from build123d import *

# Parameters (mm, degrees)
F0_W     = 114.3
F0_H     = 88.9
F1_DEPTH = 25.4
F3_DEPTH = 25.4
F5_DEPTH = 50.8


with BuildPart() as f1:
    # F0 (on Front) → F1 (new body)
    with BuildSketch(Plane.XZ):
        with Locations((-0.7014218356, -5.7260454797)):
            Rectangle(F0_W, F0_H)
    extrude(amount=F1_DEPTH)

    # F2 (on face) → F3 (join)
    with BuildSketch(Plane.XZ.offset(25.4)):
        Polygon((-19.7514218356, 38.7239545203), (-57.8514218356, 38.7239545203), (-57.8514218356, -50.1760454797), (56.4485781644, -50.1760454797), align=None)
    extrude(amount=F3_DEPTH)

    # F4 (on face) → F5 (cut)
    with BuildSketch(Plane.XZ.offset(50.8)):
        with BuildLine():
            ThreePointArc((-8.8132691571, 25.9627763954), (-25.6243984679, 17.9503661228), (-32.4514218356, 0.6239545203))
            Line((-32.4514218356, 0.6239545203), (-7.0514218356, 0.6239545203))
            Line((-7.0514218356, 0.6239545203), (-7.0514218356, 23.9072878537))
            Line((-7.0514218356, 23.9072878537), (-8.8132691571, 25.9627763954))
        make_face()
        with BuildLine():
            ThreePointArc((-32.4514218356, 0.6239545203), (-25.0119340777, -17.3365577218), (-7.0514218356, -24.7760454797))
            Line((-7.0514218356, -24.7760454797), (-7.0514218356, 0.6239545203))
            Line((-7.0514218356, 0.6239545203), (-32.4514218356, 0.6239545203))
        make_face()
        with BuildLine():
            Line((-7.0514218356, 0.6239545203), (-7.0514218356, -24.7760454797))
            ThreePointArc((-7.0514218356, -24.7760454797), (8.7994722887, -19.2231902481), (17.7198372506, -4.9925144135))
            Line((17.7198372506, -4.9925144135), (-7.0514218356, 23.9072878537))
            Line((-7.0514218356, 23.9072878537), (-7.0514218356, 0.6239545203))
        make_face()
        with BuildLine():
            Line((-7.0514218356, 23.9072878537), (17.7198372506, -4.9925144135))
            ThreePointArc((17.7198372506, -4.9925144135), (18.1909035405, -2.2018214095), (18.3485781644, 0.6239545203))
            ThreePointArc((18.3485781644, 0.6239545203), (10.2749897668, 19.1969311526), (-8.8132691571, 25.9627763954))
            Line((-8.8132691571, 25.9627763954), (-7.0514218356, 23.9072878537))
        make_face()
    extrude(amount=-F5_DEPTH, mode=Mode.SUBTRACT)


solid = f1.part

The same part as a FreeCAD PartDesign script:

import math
import FreeCAD as App
import Part
import Sketcher

V = App.Vector
Q = App.Units.Quantity

doc = App.newDocument("Part")
params = doc.addObject("Spreadsheet::Sheet", "Params")
for row, (alias, value) in enumerate([
    ("sketch1_width", "4.5 in"),
    ("sketch1_height", "3.5 in"),
    ("pad1_length", "1 in"),
    ("sketch2_width", "1.5 in"),
    ("sketch2_width2", "4.5 in"),
    ("sketch2_height", "3.5 in"),
    ("pad2_length", "1 in"),
    ("sketch3_radius", "1 in"),
    ("pocket1_length", "2 in"),
], start=1):
    params.set(f"A{row}", alias)
    params.set(f"B{row}", "=" + value)
    params.setAlias(f"B{row}", alias)

body = doc.addObject("PartDesign::Body", "Body")

sketch1 = body.newObject("Sketcher::SketchObject", "Sketch")
sketch1.AttachmentSupport = (doc.getObject("XZ_Plane"), [""])
sketch1.MapMode = "FlatFace"
sketch1.addGeometry([
    Part.LineSegment(V(-58, 39, 0), V(-58, -50, 0)),
    Part.LineSegment(V(-58, -50, 0), V(56, -50, 0)),
    Part.LineSegment(V(56, -50, 0), V(56, 39, 0)),
    Part.LineSegment(V(56, 39, 0), V(-58, 39, 0)),
], False)
sketch1.addConstraint([
    Sketcher.Constraint("Coincident", 0, 2, 1, 1),
    Sketcher.Constraint("Coincident", 1, 2, 2, 1),
    Sketcher.Constraint("Coincident", 2, 2, 3, 1),
    Sketcher.Constraint("Coincident", 3, 2, 0, 1),
    Sketcher.Constraint("Vertical", 0),
    Sketcher.Constraint("Horizontal", 1),
    Sketcher.Constraint("Vertical", 2),
    Sketcher.Constraint("Horizontal", 3),
    Sketcher.Constraint("DistanceX", 1, 1, 1, 2, Q("4.5 in")),
    Sketcher.Constraint("DistanceY", 0, 2, 0, 1, Q("3.5 in")),
    Sketcher.Constraint("DistanceX", 0, 2, -1, 1, Q("57.851422 mm")),
    Sketcher.Constraint("DistanceY", 0, 2, -1, 1, Q("50.176045 mm")),
])
sketch1.setExpression("Constraints[8]", "Params.sketch1_width")
sketch1.setExpression("Constraints[9]", "Params.sketch1_height")
pad1 = body.newObject("PartDesign::Pad", "Pad")
pad1.Profile = sketch1
pad1.setExpression("Length", "Params.pad1_length")

sketch2 = body.newObject("Sketcher::SketchObject", "Sketch001")
sketch2.AttachmentSupport = (doc.getObject("XZ_Plane"), [""])
sketch2.MapMode = "FlatFace"
sketch2.AttachmentOffset = App.Placement(V(0, 0, 1 * 25.4), App.Rotation())
sketch2.addGeometry([
    Part.LineSegment(V(-20, 39, 0), V(-58, 39, 0)),
    Part.LineSegment(V(-58, 39, 0), V(-58, -50, 0)),
    Part.LineSegment(V(-58, -50, 0), V(56, -50, 0)),
    Part.LineSegment(V(56, -50, 0), V(-20, 39, 0)),
], False)
sketch2.addConstraint([
    Sketcher.Constraint("Coincident", 0, 2, 1, 1),
    Sketcher.Constraint("Coincident", 1, 2, 2, 1),
    Sketcher.Constraint("Coincident", 2, 2, 3, 1),
    Sketcher.Constraint("Coincident", 3, 2, 0, 1),
    Sketcher.Constraint("Horizontal", 0),
    Sketcher.Constraint("Vertical", 1),
    Sketcher.Constraint("Horizontal", 2),
    Sketcher.Constraint("DistanceX", 0, 2, 0, 1, Q("1.5 in")),
    Sketcher.Constraint("DistanceX", 2, 1, 2, 2, Q("4.5 in")),
    Sketcher.Constraint("DistanceY", 1, 2, 1, 1, Q("3.5 in")),
    Sketcher.Constraint("DistanceX", 0, 2, -1, 1, Q("57.851422 mm")),
    Sketcher.Constraint("DistanceY", -1, 1, 0, 2, Q("38.723955 mm")),
])
sketch2.setExpression("Constraints[7]", "Params.sketch2_width")
sketch2.setExpression("Constraints[8]", "Params.sketch2_width2")
sketch2.setExpression("Constraints[9]", "Params.sketch2_height")
pad2 = body.newObject("PartDesign::Pad", "Pad001")
pad2.Profile = sketch2
pad2.setExpression("Length", "Params.pad2_length")

sketch3 = body.newObject("Sketcher::SketchObject", "Sketch002")
sketch3.AttachmentSupport = (doc.getObject("XZ_Plane"), [""])
sketch3.MapMode = "FlatFace"
sketch3.AttachmentOffset = App.Placement(V(0, 0, 2 * 25.4), App.Rotation())
sketch3.addGeometry([
    Part.ArcOfCircle(Part.Circle(V(-7, 1, 0), V(0, 0, 1), 25), math.radians(-90), math.radians(-13)),
    Part.ArcOfCircle(Part.Circle(V(-7, 1, 0), V(0, 0, 1), 25), math.radians(-12.77), math.radians(0)),
    Part.ArcOfCircle(Part.Circle(V(-7, 1, 0), V(0, 0, 1), 25), math.radians(0), math.radians(270)),
], False)
sketch3.addConstraint([
    Sketcher.Constraint("Tangent", 0, 2, 1, 1),
    Sketcher.Constraint("Tangent", 1, 2, 2, 1),
    Sketcher.Constraint("Tangent", 2, 2, 0, 1),
    Sketcher.Constraint("Horizontal", 2, 3, 1, 2),
    Sketcher.Constraint("Vertical", 1, 3, 2, 2),
    Sketcher.Constraint("Radius", 0, Q("1 in")),
    Sketcher.Constraint("DistanceX", 0, 3, -1, 1, Q("7.051422 mm")),
    Sketcher.Constraint("DistanceX", 0, 3, 0, 2, Q("24.771259 mm")),
    Sketcher.Constraint("DistanceY", -1, 1, 0, 3, Q("0.623955 mm")),
])
sketch3.setExpression("Constraints[5]", "Params.sketch3_radius")
pocket1 = body.newObject("PartDesign::Pocket", "Pocket")
pocket1.Profile = sketch3
pocket1.setExpression("Length", "Params.pocket1_length")

doc.recompute()
